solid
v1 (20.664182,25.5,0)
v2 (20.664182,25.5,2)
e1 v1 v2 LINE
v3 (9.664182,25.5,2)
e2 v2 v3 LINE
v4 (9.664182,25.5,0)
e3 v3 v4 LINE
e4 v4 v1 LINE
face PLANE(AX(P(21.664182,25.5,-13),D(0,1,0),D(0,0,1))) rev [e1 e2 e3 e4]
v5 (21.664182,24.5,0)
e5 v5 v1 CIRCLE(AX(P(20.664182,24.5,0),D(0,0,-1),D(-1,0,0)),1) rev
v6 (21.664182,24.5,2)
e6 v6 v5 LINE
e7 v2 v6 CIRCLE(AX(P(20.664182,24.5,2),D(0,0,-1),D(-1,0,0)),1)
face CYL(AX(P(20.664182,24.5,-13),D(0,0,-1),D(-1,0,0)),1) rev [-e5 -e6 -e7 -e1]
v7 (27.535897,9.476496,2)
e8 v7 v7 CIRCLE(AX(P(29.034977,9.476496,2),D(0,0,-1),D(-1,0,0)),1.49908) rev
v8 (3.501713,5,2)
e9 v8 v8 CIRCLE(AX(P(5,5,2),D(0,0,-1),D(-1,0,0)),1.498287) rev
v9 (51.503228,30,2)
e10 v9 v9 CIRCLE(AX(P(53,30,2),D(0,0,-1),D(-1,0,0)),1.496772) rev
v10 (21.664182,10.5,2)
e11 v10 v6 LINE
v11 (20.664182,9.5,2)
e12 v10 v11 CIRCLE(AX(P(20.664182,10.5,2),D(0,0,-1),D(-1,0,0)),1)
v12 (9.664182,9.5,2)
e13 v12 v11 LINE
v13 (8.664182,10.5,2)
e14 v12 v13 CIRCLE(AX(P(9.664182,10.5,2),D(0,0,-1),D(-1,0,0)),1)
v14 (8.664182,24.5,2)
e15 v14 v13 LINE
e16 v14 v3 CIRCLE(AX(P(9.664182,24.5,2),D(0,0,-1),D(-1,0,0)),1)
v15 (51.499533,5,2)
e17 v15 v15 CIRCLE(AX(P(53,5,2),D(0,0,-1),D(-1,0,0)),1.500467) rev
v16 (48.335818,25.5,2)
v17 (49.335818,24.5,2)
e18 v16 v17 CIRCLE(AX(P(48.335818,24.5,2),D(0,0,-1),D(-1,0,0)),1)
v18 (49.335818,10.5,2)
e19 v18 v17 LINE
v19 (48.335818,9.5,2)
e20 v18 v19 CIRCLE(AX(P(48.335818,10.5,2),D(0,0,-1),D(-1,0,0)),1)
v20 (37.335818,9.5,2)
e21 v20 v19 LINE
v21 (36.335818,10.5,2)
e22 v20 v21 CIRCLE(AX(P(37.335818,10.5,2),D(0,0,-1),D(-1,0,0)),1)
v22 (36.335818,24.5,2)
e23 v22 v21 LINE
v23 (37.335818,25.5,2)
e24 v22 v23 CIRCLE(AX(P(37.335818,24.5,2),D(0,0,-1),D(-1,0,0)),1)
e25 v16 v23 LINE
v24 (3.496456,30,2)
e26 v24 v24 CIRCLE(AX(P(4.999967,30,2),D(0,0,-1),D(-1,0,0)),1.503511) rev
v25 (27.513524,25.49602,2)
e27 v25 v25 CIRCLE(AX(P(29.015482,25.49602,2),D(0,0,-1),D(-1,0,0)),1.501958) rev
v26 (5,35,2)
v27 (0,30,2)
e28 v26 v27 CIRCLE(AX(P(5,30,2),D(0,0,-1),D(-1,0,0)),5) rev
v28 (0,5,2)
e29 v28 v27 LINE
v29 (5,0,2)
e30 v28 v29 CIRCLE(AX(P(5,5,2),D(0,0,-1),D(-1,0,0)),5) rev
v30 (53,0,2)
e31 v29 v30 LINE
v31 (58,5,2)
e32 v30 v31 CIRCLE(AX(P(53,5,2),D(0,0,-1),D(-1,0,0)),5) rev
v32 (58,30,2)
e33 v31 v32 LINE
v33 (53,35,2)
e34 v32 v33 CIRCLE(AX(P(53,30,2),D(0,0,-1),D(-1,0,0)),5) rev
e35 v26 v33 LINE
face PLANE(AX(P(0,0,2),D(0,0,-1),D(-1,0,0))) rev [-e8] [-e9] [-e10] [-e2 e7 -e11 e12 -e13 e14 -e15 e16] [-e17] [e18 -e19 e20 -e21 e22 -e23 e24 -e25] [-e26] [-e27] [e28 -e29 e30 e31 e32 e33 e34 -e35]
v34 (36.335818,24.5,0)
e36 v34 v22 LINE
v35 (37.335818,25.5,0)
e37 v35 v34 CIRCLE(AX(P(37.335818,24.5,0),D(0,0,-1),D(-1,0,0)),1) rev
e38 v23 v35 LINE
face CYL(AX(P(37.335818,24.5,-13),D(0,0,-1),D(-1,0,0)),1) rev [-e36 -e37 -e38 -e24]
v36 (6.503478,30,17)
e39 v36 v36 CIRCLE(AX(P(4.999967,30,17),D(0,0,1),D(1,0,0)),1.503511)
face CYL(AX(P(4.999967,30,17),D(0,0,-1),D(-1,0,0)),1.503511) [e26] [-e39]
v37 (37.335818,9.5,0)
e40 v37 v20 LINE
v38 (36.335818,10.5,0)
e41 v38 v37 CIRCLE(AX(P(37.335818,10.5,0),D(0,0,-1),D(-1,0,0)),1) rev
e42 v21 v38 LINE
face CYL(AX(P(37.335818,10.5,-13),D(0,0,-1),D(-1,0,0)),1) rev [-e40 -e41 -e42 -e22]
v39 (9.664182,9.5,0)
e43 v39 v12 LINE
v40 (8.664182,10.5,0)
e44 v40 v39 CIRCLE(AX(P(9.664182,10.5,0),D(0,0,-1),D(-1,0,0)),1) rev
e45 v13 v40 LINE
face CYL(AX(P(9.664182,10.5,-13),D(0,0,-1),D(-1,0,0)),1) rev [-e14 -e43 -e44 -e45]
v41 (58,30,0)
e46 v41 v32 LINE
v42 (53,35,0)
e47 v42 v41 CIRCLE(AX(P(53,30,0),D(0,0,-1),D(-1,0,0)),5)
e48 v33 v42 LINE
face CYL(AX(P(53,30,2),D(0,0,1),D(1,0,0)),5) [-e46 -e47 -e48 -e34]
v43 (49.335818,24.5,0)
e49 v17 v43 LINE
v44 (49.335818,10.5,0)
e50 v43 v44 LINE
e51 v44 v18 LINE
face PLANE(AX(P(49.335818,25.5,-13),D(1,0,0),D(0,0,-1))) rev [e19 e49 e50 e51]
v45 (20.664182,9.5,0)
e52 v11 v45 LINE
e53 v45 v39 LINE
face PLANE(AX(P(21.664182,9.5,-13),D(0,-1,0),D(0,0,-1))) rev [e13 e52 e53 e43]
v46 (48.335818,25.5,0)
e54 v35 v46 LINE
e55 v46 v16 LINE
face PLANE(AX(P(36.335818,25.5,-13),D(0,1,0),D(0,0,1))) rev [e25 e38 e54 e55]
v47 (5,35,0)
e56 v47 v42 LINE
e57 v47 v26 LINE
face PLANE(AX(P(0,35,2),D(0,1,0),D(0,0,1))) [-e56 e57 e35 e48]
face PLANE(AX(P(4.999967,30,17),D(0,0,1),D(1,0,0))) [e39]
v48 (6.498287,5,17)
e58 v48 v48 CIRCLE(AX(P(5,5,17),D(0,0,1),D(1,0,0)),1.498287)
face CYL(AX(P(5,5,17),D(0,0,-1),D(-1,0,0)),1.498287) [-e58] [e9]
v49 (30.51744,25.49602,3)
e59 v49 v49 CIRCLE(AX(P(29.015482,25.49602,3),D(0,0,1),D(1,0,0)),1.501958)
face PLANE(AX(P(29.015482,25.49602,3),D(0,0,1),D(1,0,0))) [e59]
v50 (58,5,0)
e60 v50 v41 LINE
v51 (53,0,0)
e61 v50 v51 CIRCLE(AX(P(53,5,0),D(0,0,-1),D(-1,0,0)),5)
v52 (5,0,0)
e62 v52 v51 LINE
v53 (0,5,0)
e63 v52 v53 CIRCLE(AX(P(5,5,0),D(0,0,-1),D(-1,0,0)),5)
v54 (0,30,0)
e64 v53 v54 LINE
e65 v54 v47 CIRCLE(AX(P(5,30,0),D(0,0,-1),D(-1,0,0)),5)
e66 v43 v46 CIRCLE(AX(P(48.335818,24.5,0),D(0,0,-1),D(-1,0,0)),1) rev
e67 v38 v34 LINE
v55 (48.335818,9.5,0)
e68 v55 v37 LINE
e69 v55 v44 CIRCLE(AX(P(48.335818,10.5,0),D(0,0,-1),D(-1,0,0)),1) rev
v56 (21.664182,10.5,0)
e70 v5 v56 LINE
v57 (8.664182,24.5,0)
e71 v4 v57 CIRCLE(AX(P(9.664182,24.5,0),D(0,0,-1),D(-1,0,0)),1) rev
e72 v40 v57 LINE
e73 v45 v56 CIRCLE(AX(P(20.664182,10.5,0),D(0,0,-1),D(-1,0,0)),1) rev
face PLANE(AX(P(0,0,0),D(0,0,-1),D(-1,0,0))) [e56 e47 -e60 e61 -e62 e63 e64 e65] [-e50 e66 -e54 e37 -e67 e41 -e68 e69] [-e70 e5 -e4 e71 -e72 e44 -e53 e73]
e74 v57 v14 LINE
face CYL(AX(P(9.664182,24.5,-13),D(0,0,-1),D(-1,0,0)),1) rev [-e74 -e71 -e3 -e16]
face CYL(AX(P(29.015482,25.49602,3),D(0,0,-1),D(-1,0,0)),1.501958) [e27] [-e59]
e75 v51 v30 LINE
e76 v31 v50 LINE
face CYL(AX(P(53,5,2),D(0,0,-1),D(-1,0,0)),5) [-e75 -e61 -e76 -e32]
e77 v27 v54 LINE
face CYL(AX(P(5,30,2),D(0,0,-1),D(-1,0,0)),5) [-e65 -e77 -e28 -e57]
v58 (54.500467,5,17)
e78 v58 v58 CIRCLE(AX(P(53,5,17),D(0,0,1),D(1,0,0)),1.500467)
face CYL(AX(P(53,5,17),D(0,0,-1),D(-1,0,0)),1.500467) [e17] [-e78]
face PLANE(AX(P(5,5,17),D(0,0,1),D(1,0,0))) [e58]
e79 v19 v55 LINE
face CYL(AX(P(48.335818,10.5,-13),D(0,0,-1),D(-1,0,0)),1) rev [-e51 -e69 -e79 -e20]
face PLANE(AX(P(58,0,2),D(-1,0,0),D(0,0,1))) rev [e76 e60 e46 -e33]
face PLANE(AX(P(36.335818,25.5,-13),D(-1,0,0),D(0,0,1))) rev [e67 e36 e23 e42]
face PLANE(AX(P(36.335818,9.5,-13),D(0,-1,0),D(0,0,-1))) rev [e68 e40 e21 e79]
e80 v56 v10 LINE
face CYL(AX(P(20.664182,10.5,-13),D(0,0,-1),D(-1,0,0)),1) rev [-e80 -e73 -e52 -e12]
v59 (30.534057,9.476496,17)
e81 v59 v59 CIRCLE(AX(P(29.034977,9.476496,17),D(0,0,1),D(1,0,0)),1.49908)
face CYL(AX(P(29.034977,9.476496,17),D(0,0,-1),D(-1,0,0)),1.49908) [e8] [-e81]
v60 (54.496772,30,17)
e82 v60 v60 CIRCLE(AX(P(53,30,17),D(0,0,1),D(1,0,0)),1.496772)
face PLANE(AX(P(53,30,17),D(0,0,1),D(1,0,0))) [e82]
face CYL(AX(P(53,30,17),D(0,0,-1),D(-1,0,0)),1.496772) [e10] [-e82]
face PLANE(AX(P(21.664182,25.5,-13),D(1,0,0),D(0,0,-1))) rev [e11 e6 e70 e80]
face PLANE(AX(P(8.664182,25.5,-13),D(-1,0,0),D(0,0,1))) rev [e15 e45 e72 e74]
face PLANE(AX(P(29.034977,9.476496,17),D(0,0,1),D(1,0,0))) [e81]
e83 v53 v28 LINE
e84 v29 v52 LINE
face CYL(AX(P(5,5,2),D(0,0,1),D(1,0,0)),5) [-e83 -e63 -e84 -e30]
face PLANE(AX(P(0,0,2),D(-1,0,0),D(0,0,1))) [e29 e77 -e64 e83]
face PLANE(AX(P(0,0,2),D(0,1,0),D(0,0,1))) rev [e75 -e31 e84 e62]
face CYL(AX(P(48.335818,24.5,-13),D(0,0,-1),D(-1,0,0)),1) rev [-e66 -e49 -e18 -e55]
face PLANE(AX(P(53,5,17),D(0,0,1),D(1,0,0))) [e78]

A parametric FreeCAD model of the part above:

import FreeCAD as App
import Part
import Sketcher

V = App.Vector
Q = App.Units.Quantity


def edges_at(feature, points):
    """Names of the edges that pass closest to the given points."""
    edges = feature.Shape.Edges
    near = lambda p: min(range(len(edges)), key=lambda i: edges[i].distToShape(Part.Vertex(*p))[0])
    return sorted({f"Edge{near(p) + 1}" for p in points})

doc = App.newDocument("Part")
body = doc.addObject("PartDesign::Body", "Body")

# Sketch on XY plane
sketch1 = doc.addObject("Sketcher::SketchObject", "Sketch")
body.addObject(sketch1)
sketch1.AttachmentSupport = (doc.XY_Plane, [""])
sketch1.MapMode = "FlatFace"
sketch1.addGeometry([
    Part.LineSegment(V(0, 35, 0), V(0, 0, 0)),
    Part.LineSegment(V(0, 0, 0), V(58, 0, 0)),
    Part.LineSegment(V(58, 0, 0), V(58, 35, 0)),
    Part.LineSegment(V(58, 35, 0), V(0, 35, 0)),
], False)
sketch1.addConstraint([
    Sketcher.Constraint("Coincident", 0, 2, 1, 1),
    Sketcher.Constraint("Coincident", 1, 2, 2, 1),
    Sketcher.Constraint("Coincident", 2, 2, 3, 1),
    Sketcher.Constraint("Coincident", 3, 2, 0, 1),
    Sketcher.Constraint("Vertical", 0),
    Sketcher.Constraint("Horizontal", 1),
    Sketcher.Constraint("Vertical", 2),
    Sketcher.Constraint("Horizontal", 3),
    Sketcher.Constraint("Coincident", 0, 2, -1, 1),
    Sketcher.Constraint("DistanceX", 1, 1, 1, 2, Q("58 mm")),
    Sketcher.Constraint("DistanceY", 0, 2, 0, 1, Q("35 mm")),
])
pad1 = doc.addObject("PartDesign::Pad", "Pad")
body.addObject(pad1)
pad1.Profile = sketch1
pad1.Length = 2
doc.recompute()

fillet = doc.addObject("PartDesign::Fillet", "Fillet")
body.addObject(fillet)
fillet.Base = (pad1, edges_at(pad1, [
    (0, 0, 1),
    (58, 0, 1),
    (58, 35, 1),
    (0, 35, 1),
]))
fillet.Radius = 5

# Sketch on XY plane
sketch2 = doc.addObject("Sketcher::SketchObject", "Sketch001")
body.addObject(sketch2)
sketch2.AttachmentSupport = (doc.XY_Plane, [""])
sketch2.MapMode = "FlatFace"
sketch2.AttachmentOffset = App.Placement(V(0, 0, 2), App.Rotation())
sketch2.addGeometry(Part.Circle(V(53, 30, 0), V(0, 0, 1), 1.5), False)
sketch2.addConstraint([
    Sketcher.Constraint("DistanceX", -1, 1, 0, 3, Q("53 mm")),
    Sketcher.Constraint("DistanceY", -1, 1, 0, 3, Q("30 mm")),
    Sketcher.Constraint("Diameter", 0, Q("2.993544 mm")),
])
pad2 = doc.addObject("PartDesign::Pad", "Pad001")
body.addObject(pad2)
pad2.Profile = sketch2
pad2.Length = 15

# Sketch on XY plane
sketch3 = doc.addObject("Sketcher::SketchObject", "Sketch002")
body.addObject(sketch3)
sketch3.AttachmentSupport = (doc.XY_Plane, [""])
sketch3.MapMode = "FlatFace"
sketch3.AttachmentOffset = App.Placement(V(0, 0, 2), App.Rotation())
sketch3.addGeometry(Part.Circle(V(5, 30, 0), V(0, 0, 1), 1.5), False)
sketch3.addConstraint([
    Sketcher.Constraint("DistanceY", -1, 1, 0, 3, Q("30 mm")),
    Sketcher.Constraint("Diameter", 0, Q("3.007022 mm")),
    Sketcher.Constraint("DistanceX", -1, 1, 0, 3, Q("4.999967 mm")),
])
pad3 = doc.addObject("PartDesign::Pad", "Pad002")
body.addObject(pad3)
pad3.Profile = sketch3
pad3.Length = 15

# Sketch on XY plane
sketch4 = doc.addObject("Sketcher::SketchObject", "Sketch003")
body.addObject(sketch4)
sketch4.AttachmentSupport = (doc.XY_Plane, [""])
sketch4.MapMode = "FlatFace"
sketch4.AttachmentOffset = App.Placement(V(0, 0, 2), App.Rotation())
sketch4.addGeometry(Part.Circle(V(5, 5, 0), V(0, 0, 1), 1.5), False)
sketch4.addConstraint([
    Sketcher.Constraint("DistanceX", -1, 1, 0, 3, Q("5 mm")),
    Sketcher.Constraint("DistanceY", -1, 1, 0, 3, Q("5 mm")),
    Sketcher.Constraint("Diameter", 0, Q("2.996574 mm")),
])
pad4 = doc.addObject("PartDesign::Pad", "Pad003")
body.addObject(pad4)
pad4.Profile = sketch4
pad4.Length = 15

# Sketch on XY plane
sketch5 = doc.addObject("Sketcher::SketchObject", "Sketch004")
body.addObject(sketch5)
sketch5.AttachmentSupport = (doc.XY_Plane, [""])
sketch5.MapMode = "FlatFace"
sketch5.AttachmentOffset = App.Placement(V(0, 0, 2), App.Rotation())
sketch5.addGeometry(Part.Circle(V(53, 5, 0), V(0, 0, 1), 1.5), False)
sketch5.addConstraint([
    Sketcher.Constraint("DistanceX", -1, 1, 0, 3, Q("53 mm")),
    Sketcher.Constraint("DistanceY", -1, 1, 0, 3, Q("5 mm")),
    Sketcher.Constraint("Diameter", 0, Q("3.000934 mm")),
])
pad5 = doc.addObject("PartDesign::Pad", "Pad004")
body.addObject(pad5)
pad5.Profile = sketch5
pad5.Length = 15

# Sketch on XY plane
sketch6 = doc.addObject("Sketcher::SketchObject", "Sketch005")
body.addObject(sketch6)
sketch6.AttachmentSupport = (doc.XY_Plane, [""])
sketch6.MapMode = "FlatFace"
sketch6.AttachmentOffset = App.Placement(V(0, 0, 2), App.Rotation())
sketch6.addGeometry([
    Part.LineSegment(V(36, 26, 0), V(36, 10, 0)),  # 0
    Part.LineSegment(V(36, 10, 0), V(49, 10, 0)),  # 1
    Part.LineSegment(V(49, 10, 0), V(49, 26, 0)),  # 2
    Part.LineSegment(V(49, 26, 0), V(36, 26, 0)),  # 3
    Part.LineSegment(V(9, 26, 0), V(9, 10, 0)),  # 4
    Part.LineSegment(V(9, 10, 0), V(22, 10, 0)),  # 5
    Part.LineSegment(V(22, 10, 0), V(22, 26, 0)),  # 6
    Part.LineSegment(V(22, 26, 0), V(9, 26, 0)),  # 7
], False)
sketch6.addConstraint([
    Sketcher.Constraint("Coincident", 0, 2, 1, 1),
    Sketcher.Constraint("Coincident", 1, 2, 2, 1),
    Sketcher.Constraint("Coincident", 2, 2, 3, 1),
    Sketcher.Constraint("Coincident", 3, 2, 0, 1),
    Sketcher.Constraint("Coincident", 4, 2, 5, 1),
    Sketcher.Constraint("Coincident", 5, 2, 6, 1),
    Sketcher.Constraint("Coincident", 6, 2, 7, 1),
    Sketcher.Constraint("Coincident", 7, 2, 4, 1),
    Sketcher.Constraint("Vertical", 0),
    Sketcher.Constraint("Horizontal", 1),
    Sketcher.Constraint("Vertical", 2),
    Sketcher.Constraint("Horizontal", 3),
    Sketcher.Constraint("Vertical", 4),
    Sketcher.Constraint("Horizontal", 5),
    Sketcher.Constraint("Vertical", 6),
    Sketcher.Constraint("Horizontal", 7),
    Sketcher.Constraint("Horizontal", 1, 2, 4, 2),
    Sketcher.Constraint("Horizontal", 3, 2, 6, 2),
    Sketcher.Constraint("Equal", 3, 5),
    Sketcher.Constraint("DistanceX", 1, 1, 1, 2, Q("13 mm")),
    Sketcher.Constraint("DistanceY", 0, 2, 0, 1, Q("16 mm")),
    Sketcher.Constraint("DistanceY", -1, 1, 0, 2, Q("9.5 mm")),
    Sketcher.Constraint("DistanceX", -1, 1, 0, 2, Q("36.335818 mm")),
    Sketcher.Constraint("DistanceX", -1, 1, 4, 2, Q("8.664182 mm")),
])
pocket1 = doc.addObject("PartDesign::Pocket", "Pocket")
body.addObject(pocket1)
pocket1.Profile = sketch6
pocket1.Length = 15
doc.recompute()

fillet2 = doc.addObject("PartDesign::Fillet", "Fillet001")
body.addObject(fillet2)
fillet2.Base = (pocket1, edges_at(pocket1, [
    (49.336, 25.5, 1),
    (49.336, 9.5, 1),
    (36.336, 9.5, 1),
    (36.336, 25.5, 1),
    (21.664, 25.5, 1),
    (21.664, 9.5, 1),
    (8.664, 9.5, 1),
    (8.664, 25.5, 1),
]))
fillet2.Radius = 1

# Sketch on XY plane
sketch7 = doc.addObject("Sketcher::SketchObject", "Sketch006")
body.addObject(sketch7)
sketch7.AttachmentSupport = (doc.XY_Plane, [""])
sketch7.MapMode = "FlatFace"
sketch7.AttachmentOffset = App.Placement(V(0, 0, 2), App.Rotation())
sketch7.addGeometry(Part.Circle(V(29, 25.5, 0), V(0, 0, 1), 1.5), False)
sketch7.addConstraint([
    Sketcher.Constraint("Diameter", 0, Q("3.003917 mm")),
    Sketcher.Constraint("DistanceX", -1, 1, 0, 3, Q("29.015482 mm")),
    Sketcher.Constraint("DistanceY", -1, 1, 0, 3, Q("25.49602 mm")),
])
pad6 = doc.addObject("PartDesign::Pad", "Pad005")
body.addObject(pad6)
pad6.Profile = sketch7
pad6.Length = 1

# Sketch on XY plane
sketch8 = doc.addObject("Sketcher::SketchObject", "Sketch007")
body.addObject(sketch8)
sketch8.AttachmentSupport = (doc.XY_Plane, [""])
sketch8.MapMode = "FlatFace"
sketch8.AttachmentOffset = App.Placement(V(0, 0, 2), App.Rotation())
sketch8.addGeometry(Part.Circle(V(29, 9.5, 0), V(0, 0, 1), 1.5), False)
sketch8.addConstraint([
    Sketcher.Constraint("Diameter", 0, Q("2.99816 mm")),
    Sketcher.Constraint("DistanceX", -1, 1, 0, 3, Q("29.034977 mm")),
    Sketcher.Constraint("DistanceY", -1, 1, 0, 3, Q("9.476496 mm")),
])
pad7 = doc.addObject("PartDesign::Pad", "Pad006")
body.addObject(pad7)
pad7.Profile = sketch8
pad7.Length = 15

doc.recompute()
